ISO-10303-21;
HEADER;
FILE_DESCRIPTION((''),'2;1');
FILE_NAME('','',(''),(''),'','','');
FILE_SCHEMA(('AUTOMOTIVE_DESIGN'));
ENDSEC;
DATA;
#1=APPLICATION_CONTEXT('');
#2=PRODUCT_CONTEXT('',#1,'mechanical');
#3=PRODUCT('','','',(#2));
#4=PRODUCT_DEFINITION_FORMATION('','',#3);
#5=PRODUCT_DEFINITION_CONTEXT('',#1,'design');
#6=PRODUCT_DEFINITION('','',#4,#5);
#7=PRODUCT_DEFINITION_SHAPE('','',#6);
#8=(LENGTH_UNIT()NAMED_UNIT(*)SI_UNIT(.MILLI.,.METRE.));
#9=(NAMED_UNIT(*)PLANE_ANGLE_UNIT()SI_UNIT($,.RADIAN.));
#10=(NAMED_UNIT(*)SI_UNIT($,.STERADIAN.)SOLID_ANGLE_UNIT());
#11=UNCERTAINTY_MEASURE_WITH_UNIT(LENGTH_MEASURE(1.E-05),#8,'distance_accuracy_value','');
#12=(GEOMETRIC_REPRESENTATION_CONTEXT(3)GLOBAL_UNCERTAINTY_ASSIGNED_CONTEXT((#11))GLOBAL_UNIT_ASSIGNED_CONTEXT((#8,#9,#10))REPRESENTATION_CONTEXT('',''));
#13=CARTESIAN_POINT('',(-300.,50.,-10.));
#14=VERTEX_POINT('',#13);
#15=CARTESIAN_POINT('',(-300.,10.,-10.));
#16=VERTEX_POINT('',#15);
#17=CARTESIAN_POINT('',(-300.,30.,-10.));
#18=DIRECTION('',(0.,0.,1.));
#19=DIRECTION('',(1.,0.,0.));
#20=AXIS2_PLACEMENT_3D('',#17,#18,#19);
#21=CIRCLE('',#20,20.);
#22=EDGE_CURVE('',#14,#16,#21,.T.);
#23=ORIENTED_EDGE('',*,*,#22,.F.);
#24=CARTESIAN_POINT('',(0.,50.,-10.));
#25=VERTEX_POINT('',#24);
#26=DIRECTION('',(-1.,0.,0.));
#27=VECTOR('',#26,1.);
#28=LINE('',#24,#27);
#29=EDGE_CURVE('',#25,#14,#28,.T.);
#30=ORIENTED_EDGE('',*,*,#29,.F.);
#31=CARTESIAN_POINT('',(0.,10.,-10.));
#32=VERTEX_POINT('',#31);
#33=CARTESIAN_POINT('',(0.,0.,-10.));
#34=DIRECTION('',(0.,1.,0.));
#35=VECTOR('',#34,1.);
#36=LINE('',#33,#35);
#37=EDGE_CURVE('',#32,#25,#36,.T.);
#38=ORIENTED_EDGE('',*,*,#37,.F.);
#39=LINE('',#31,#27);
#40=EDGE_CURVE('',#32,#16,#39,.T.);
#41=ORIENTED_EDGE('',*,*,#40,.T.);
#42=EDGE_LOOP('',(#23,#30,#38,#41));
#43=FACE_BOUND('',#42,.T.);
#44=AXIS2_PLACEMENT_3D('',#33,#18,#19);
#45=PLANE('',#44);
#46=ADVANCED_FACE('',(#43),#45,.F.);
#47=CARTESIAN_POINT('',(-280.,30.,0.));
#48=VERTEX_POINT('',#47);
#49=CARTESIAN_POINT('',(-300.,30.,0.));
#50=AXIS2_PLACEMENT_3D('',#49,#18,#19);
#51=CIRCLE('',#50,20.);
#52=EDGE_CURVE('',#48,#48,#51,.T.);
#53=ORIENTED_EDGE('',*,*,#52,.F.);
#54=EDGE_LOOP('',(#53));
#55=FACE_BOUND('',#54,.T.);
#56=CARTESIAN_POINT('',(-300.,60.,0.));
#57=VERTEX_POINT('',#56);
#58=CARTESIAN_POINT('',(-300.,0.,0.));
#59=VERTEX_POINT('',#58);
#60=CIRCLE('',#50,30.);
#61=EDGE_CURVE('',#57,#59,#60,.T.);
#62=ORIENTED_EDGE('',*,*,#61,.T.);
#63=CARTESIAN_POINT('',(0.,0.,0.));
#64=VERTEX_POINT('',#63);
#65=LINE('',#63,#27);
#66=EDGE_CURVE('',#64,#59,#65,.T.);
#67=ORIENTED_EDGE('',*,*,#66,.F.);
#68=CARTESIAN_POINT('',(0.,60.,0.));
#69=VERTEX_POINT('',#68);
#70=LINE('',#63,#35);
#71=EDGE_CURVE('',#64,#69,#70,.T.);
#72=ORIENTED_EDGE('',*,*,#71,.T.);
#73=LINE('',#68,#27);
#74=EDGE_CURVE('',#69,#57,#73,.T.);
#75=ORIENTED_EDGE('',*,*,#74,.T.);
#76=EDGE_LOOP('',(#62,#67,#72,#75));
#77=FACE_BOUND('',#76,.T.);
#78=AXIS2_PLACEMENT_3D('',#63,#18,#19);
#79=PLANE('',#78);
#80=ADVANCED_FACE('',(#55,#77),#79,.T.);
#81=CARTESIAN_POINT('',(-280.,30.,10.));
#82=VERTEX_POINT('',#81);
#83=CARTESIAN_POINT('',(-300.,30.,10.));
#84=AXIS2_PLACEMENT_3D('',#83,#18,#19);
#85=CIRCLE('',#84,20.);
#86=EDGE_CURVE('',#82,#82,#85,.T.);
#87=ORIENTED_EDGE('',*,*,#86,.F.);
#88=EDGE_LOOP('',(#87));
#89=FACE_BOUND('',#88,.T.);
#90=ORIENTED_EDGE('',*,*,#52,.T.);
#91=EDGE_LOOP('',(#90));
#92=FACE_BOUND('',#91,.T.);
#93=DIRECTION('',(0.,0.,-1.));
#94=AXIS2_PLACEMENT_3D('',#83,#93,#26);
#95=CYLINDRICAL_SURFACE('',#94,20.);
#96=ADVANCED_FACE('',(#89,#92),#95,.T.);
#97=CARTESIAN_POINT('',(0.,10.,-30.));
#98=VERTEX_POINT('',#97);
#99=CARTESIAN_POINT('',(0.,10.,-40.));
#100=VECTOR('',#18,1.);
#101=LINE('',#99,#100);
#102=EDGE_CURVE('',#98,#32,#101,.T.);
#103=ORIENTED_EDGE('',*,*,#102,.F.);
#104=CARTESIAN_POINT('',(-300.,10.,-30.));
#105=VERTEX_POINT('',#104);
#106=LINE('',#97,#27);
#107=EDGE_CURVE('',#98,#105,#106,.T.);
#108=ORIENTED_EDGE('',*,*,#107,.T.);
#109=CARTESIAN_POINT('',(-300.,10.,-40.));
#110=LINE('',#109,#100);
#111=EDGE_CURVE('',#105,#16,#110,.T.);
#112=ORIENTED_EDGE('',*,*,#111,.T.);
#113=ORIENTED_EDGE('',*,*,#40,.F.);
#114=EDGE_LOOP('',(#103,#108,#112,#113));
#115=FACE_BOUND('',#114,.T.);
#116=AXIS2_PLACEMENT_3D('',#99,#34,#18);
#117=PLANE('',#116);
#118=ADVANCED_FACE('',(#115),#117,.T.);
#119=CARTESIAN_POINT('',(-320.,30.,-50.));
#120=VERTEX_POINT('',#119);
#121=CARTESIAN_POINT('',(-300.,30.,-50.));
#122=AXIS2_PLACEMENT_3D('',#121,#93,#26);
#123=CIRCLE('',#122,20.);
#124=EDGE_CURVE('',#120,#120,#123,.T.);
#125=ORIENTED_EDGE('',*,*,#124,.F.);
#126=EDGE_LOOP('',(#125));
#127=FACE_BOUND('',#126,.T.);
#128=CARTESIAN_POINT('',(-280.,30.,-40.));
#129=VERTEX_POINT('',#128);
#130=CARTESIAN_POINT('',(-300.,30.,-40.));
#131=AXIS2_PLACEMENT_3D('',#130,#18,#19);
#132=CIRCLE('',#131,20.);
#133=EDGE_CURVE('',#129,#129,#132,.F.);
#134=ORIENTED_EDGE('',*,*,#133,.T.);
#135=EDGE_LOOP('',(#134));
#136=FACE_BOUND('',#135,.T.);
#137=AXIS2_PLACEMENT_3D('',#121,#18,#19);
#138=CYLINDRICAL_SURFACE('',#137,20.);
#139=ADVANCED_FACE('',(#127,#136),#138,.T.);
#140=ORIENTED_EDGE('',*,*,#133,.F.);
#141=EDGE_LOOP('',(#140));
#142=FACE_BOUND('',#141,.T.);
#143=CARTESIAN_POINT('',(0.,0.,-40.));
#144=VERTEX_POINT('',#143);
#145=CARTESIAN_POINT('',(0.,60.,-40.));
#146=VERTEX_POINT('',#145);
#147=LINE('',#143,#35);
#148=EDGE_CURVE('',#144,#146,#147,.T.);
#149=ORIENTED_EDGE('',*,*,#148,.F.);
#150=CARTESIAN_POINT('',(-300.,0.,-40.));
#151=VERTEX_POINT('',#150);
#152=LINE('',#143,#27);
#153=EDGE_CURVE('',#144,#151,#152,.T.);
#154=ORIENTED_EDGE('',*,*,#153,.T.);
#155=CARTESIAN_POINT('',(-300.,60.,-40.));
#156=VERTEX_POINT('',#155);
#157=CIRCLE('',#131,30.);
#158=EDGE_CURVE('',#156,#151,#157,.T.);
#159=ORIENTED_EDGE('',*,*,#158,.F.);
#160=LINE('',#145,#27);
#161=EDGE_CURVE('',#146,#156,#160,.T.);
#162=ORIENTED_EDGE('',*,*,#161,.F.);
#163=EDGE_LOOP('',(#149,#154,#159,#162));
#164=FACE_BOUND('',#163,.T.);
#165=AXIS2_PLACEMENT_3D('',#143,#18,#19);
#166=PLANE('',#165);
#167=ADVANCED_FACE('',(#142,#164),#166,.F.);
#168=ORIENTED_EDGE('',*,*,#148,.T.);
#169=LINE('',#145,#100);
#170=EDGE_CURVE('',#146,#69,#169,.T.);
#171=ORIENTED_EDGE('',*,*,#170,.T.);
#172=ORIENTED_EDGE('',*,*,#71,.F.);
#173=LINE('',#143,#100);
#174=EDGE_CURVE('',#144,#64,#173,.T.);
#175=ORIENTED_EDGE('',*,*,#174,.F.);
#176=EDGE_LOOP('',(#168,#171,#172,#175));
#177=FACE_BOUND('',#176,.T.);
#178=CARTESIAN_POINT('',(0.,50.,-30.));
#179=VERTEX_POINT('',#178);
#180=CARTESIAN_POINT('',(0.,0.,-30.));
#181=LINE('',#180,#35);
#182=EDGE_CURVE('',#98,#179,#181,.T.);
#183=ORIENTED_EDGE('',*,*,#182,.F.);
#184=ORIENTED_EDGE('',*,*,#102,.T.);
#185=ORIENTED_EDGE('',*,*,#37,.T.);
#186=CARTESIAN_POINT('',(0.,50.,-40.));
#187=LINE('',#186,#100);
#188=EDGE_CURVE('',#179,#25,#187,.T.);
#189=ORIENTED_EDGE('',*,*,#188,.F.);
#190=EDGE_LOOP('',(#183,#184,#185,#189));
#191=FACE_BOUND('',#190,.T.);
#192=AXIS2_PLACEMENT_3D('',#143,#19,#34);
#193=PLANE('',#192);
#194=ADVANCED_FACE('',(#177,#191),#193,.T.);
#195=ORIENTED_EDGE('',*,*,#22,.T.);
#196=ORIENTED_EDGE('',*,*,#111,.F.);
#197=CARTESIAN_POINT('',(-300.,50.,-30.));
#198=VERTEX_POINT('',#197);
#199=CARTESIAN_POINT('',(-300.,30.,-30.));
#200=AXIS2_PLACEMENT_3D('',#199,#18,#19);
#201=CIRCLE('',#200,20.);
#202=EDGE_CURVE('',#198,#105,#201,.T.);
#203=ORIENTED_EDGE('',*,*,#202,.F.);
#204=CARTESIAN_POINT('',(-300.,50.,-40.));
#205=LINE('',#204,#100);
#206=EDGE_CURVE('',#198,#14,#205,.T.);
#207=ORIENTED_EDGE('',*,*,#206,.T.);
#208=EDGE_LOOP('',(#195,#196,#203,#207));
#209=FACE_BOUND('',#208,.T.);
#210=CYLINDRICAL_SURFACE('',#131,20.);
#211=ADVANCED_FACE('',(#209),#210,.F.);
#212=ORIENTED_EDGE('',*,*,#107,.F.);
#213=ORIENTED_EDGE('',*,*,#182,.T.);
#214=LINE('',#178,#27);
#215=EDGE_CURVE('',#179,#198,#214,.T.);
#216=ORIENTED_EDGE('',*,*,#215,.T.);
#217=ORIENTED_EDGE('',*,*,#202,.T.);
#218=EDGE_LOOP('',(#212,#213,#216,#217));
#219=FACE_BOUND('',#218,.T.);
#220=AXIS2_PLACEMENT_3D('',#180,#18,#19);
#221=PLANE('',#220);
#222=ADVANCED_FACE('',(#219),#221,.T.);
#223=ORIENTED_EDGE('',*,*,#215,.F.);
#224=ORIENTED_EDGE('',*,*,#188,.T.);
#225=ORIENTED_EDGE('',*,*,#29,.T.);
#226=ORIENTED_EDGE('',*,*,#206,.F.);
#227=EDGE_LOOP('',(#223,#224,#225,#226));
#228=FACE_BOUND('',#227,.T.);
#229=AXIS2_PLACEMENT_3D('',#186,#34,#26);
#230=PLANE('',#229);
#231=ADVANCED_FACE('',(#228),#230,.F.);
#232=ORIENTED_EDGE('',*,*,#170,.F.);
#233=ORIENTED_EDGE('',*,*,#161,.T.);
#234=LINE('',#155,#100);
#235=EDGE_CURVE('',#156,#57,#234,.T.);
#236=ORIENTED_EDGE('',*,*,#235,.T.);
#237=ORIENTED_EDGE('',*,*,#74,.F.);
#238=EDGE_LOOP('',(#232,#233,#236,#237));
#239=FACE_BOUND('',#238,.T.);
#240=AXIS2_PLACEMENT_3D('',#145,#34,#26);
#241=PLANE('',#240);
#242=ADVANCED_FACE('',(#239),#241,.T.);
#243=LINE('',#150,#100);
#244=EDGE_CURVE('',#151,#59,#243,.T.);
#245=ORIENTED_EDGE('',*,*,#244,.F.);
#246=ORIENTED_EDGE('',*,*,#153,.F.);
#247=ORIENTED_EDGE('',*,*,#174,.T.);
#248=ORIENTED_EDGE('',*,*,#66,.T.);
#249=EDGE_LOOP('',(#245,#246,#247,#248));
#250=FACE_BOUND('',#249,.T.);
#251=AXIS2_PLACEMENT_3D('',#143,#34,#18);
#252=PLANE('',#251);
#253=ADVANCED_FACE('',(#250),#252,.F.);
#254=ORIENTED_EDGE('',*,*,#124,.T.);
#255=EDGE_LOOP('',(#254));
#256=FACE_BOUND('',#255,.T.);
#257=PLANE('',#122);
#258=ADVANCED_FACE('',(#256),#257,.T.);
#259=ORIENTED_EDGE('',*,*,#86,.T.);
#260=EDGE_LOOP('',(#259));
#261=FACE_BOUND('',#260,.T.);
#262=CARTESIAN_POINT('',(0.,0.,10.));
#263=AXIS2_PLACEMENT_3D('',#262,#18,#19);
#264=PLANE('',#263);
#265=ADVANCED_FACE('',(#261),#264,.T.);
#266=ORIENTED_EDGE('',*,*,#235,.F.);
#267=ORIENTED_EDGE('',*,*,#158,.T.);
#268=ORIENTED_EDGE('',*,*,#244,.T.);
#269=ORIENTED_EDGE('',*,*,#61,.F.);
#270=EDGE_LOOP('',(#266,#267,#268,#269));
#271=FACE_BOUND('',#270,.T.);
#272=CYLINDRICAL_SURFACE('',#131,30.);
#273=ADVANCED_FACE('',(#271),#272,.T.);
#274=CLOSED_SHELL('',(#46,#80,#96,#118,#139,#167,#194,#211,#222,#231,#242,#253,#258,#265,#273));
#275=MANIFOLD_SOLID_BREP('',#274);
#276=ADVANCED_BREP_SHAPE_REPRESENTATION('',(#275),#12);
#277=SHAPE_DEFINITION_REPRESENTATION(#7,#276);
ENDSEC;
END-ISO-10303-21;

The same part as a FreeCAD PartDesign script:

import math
import FreeCAD as App
import Part
import Sketcher
from FreeCAD import Vector
Q = App.Units.Quantity


def faces_at(feature, points):
    """Names of the faces that lie closest to the given points."""
    faces = feature.Shape.Faces
    near = lambda p: min(range(len(faces)), key=lambda i: faces[i].distToShape(Part.Vertex(*p))[0])
    return sorted({f"Face{near(p) + 1}" for p in points})

doc = App.newDocument("Part")
body = doc.addObject("PartDesign::Body", "Body")

sketch1 = body.newObject("Sketcher::SketchObject", "Sketch")
sketch1.AttachmentSupport = (doc.getObject("XY_Plane"), [""])
sketch1.MapMode = "FlatFace"
sketch1.addGeometry([
    Part.LineSegment(Vector(0, 60, 0), Vector(-300, 60, 0)),
    Part.ArcOfCircle(Part.Circle(Vector(-300, 30, 0), Vector(0, 0, 1), 30), math.radians(90), math.radians(270)),
    Part.LineSegment(Vector(-300, 0, 0), Vector(0, 0, 0)),
    Part.LineSegment(Vector(0, 0, 0), Vector(0, 60, 0)),
], False)
sketch1.addConstraint([
    Sketcher.Constraint("Tangent", 0, 2, 1, 1),
    Sketcher.Constraint("Tangent", 1, 2, 2, 1),
    Sketcher.Constraint("Coincident", 2, 2, 3, 1),
    Sketcher.Constraint("Coincident", 3, 2, 0, 1),
    Sketcher.Constraint("Horizontal", 0),
    Sketcher.Constraint("Horizontal", 2),
    Sketcher.Constraint("Vertical", 3),
    Sketcher.Constraint("Coincident", 2, 2, -1, 1),
    Sketcher.Constraint("Radius", 1, Q("30 mm")),
    Sketcher.Constraint("DistanceX", 0, 2, 0, 1, Q("300 mm")),
])
pad1 = body.newObject("PartDesign::Pad", "Pad")
pad1.Profile = sketch1
pad1.Length = 40
pad1.Reversed = True
doc.recompute()

thickness = body.newObject("PartDesign::Thickness", "Thickness")
thickness.Base = (pad1, faces_at(pad1, [(0, 30, -20)]))
thickness.Value = 10
thickness.Reversed = True
thickness.Join = "Intersection"

sketch2 = body.newObject("Sketcher::SketchObject", "Sketch001")
sketch2.AttachmentSupport = (doc.getObject("XY_Plane"), [""])
sketch2.MapMode = "FlatFace"
sketch2.AttachmentOffset = App.Placement(Vector(0, 0, 10), App.Rotation())
sketch2.addGeometry(Part.Circle(Vector(-300, 30, 0), Vector(0, 0, 1), 20), False)
sketch2.addConstraint([
    Sketcher.Constraint("Diameter", 0, Q("40 mm")),
    Sketcher.Constraint("DistanceX", 0, 3, -1, 1, Q("300 mm")),
    Sketcher.Constraint("DistanceY", -1, 1, 0, 3, Q("30 mm")),
])
pad2 = body.newObject("PartDesign::Pad", "Pad001")
pad2.Profile = sketch2
pad2.Length = 10
pad2.Reversed = True

sketch3 = body.newObject("Sketcher::SketchObject", "Sketch002")
sketch3.AttachmentSupport = (doc.getObject("XY_Plane"), [""])
sketch3.MapMode = "FlatFace"
sketch3.AttachmentOffset = App.Placement(Vector(0, 0, -40), App.Rotation())
sketch3.addGeometry(Part.Circle(Vector(-300, 30, 0), Vector(0, 0, 1), 20), False)
sketch3.addConstraint([
    Sketcher.Constraint("Diameter", 0, Q("40 mm")),
    Sketcher.Constraint("DistanceX", 0, 3, -1, 1, Q("300 mm")),
    Sketcher.Constraint("DistanceY", -1, 1, 0, 3, Q("30 mm")),
])
pad3 = body.newObject("PartDesign::Pad", "Pad002")
pad3.Profile = sketch3
pad3.Length = 10
pad3.Reversed = True

doc.recompute()
